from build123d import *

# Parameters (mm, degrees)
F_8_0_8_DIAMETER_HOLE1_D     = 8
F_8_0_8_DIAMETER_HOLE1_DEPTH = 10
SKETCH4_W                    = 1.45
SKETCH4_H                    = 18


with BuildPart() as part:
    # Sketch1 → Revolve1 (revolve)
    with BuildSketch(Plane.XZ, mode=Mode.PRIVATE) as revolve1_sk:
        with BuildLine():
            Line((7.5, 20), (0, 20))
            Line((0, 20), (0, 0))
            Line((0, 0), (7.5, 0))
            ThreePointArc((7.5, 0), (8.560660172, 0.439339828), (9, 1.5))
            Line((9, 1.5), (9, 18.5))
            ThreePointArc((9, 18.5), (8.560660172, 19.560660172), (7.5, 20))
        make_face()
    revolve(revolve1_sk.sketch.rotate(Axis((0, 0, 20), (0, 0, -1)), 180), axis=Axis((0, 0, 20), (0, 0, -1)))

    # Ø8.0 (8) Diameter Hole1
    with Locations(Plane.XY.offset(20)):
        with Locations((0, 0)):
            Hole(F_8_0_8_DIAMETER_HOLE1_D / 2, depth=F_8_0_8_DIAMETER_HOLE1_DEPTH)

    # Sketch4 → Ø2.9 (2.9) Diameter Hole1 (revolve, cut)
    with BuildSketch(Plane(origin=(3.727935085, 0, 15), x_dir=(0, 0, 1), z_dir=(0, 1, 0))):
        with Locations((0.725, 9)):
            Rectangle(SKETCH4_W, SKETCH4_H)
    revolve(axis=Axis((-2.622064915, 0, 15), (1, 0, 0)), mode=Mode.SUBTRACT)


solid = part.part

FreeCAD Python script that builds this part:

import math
import FreeCAD as App
import Part
import Sketcher

doc = App.newDocument("Part")
body = doc.addObject("PartDesign::Body", "Body")

# Sketch on XZ plane
sketch1 = body.newObject("Sketcher::SketchObject", "Sketch")
sketch1.AttachmentSupport = (doc.getObject("XZ_Plane"), [""])
sketch1.MapMode = "FlatFace"
sketch1.addGeometry([
    Part.LineSegment(App.Vector(7.5, 20, 0), App.Vector(0, 20, 0)),  # 0
    Part.LineSegment(App.Vector(0, 20, 0), App.Vector(0, 0, 0)),  # 1
    Part.LineSegment(App.Vector(0, 0, 0), App.Vector(7.5, 0, 0)),  # 2
    Part.ArcOfCircle(Part.Circle(App.Vector(7.5, 1.5, 0), App.Vector(0, 0, 1), 1.5), math.radians(-90), math.radians(0)),  # 3
    Part.LineSegment(App.Vector(9, 1.5, 0), App.Vector(9, 18.5, 0)),  # 4
    Part.ArcOfCircle(Part.Circle(App.Vector(7.5, 18.5, 0), App.Vector(0, 0, 1), 1.5), math.radians(0), math.radians(90)),  # 5
], False)
sketch1.addConstraint([
    Sketcher.Constraint("Coincident", 0, 2, 1, 1),
    Sketcher.Constraint("Coincident", 1, 2, 2, 1),
    Sketcher.Constraint("Tangent", 2, 2, 3, 1),
    Sketcher.Constraint("Tangent", 3, 2, 4, 1),
    Sketcher.Constraint("Tangent", 4, 2, 5, 1),
    Sketcher.Constraint("Tangent", 5, 2, 0, 1),
    Sketcher.Constraint("Horizontal", 0),
    Sketcher.Constraint("Vertical", 1),
    Sketcher.Constraint("Horizontal", 2),
    Sketcher.Constraint("Vertical", 4),
    Sketcher.Constraint("Coincident", 1, 2, -1, 1),
    Sketcher.Constraint("Equal", 3, 5),
    Sketcher.Constraint("Radius", 3, 1.5),
    Sketcher.Constraint("DistanceY", 1, 2, 1, 1, 20.0),
    Sketcher.Constraint("DistanceX", 0, 2, 0, 1, 7.5),
])
revolution = body.newObject("PartDesign::Revolution", "Revolution")
revolution.Profile = sketch1
revolution.ReferenceAxis = (sketch1, ["V_Axis"])
revolution.Angle = 360

# Sketch on XY plane
sketch2 = body.newObject("Sketcher::SketchObject", "Sketch001")
sketch2.AttachmentSupport = (doc.getObject("XY_Plane"), [""])
sketch2.MapMode = "FlatFace"
sketch2.AttachmentOffset = App.Placement(App.Vector(0, 0, 20), App.Rotation())
sketch2.addGeometry(Part.Circle(App.Vector(0, 0, 0), App.Vector(0, 0, 1), 4), False)
sketch2.addConstraint([
    Sketcher.Constraint("Coincident", 0, 3, -1, 1),
    Sketcher.Constraint("Diameter", 0, 8.0),
])
doc.recompute()
hole = body.newObject("PartDesign::Hole", "Hole")
hole.Profile = sketch2
hole.ThreadType = "None"
hole.Diameter = 8
hole.DepthType = "Dimension"
hole.Depth = 10
hole.DrillPoint = "Flat"

# Sketch on XZ plane
sketch3 = body.newObject("Sketcher::SketchObject", "Sketch002")
sketch3.AttachmentSupport = (doc.getObject("XZ_Plane"), [""])
sketch3.MapMode = "FlatFace"
sketch3.addGeometry([
    Part.LineSegment(App.Vector(21.727935, 15, 0), App.Vector(3.727935, 15, 0)),
    Part.LineSegment(App.Vector(3.727935, 15, 0), App.Vector(3.727935, 16.45, 0)),
    Part.LineSegment(App.Vector(3.727935, 16.45, 0), App.Vector(21.727935, 16.45, 0)),
    Part.LineSegment(App.Vector(21.727935, 16.45, 0), App.Vector(21.727935, 15, 0)),
], False)
sketch3.addGeometry(Part.LineSegment(App.Vector(3.727935, 15, 0), App.Vector(21.727935, 15, 0)), True)  # axis
sketch3.addConstraint([
    Sketcher.Constraint("Coincident", 0, 2, 1, 1),
    Sketcher.Constraint("Coincident", 1, 2, 2, 1),
    Sketcher.Constraint("Coincident", 2, 2, 3, 1),
    Sketcher.Constraint("Coincident", 3, 2, 0, 1),
    Sketcher.Constraint("Horizontal", 0),
    Sketcher.Constraint("Vertical", 1),
    Sketcher.Constraint("Horizontal", 2),
    Sketcher.Constraint("Vertical", 3),
    Sketcher.Constraint("Horizontal", 4),
    Sketcher.Constraint("Coincident", 4, 1, 0, 2),
    Sketcher.Constraint("Vertical", 2, 2, 4, 2),
    Sketcher.Constraint("DistanceX", 0, 2, 0, 1, 18.0),
    Sketcher.Constraint("DistanceY", -1, 1, 0, 2, 15.0),
    Sketcher.Constraint("DistanceY", 1, 1, 1, 2, 1.45),
    Sketcher.Constraint("DistanceX", -1, 1, 0, 2, 3.727935),
])
groove = body.newObject("PartDesign::Groove", "Groove")
groove.Profile = sketch3
groove.ReferenceAxis = (sketch3, ["Axis0"])
groove.Angle = 360

doc.recompute()
